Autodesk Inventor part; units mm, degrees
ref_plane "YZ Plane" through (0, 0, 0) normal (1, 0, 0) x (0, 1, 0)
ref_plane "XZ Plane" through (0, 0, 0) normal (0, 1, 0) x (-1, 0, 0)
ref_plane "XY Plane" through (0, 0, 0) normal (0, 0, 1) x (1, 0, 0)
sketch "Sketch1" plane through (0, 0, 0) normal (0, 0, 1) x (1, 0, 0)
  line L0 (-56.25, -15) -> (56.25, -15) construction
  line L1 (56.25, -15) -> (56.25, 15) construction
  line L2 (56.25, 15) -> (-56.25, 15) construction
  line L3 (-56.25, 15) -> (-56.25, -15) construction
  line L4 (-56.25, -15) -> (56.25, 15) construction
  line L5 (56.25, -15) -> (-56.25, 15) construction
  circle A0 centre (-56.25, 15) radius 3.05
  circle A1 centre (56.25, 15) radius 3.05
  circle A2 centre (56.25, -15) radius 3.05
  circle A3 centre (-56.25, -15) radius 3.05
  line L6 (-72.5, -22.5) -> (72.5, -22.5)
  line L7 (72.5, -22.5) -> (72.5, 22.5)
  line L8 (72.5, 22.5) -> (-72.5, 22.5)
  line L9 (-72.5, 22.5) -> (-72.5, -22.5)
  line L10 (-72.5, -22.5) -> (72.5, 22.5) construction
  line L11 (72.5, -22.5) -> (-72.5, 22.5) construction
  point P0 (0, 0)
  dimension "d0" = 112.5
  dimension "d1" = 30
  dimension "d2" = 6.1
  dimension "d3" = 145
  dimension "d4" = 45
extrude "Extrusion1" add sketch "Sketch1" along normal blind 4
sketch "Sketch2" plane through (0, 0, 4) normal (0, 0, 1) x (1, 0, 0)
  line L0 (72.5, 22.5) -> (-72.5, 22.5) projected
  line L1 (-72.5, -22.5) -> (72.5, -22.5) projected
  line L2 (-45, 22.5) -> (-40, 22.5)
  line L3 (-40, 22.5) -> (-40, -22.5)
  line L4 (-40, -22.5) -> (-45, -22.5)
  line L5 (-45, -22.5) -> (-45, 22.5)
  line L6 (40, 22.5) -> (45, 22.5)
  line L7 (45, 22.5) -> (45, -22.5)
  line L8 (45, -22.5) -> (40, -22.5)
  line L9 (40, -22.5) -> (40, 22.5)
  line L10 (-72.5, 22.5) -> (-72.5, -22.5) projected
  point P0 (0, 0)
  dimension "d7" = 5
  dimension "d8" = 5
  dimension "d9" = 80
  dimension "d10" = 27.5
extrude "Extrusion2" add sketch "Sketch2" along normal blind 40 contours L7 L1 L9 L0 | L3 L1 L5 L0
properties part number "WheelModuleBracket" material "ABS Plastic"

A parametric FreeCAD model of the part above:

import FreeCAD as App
import Part
import Sketcher
from FreeCAD import Vector


def add_polygon(sketch, points):
    """Adds a closed chain of lines whose ends are joined by coincident constraints."""
    first, n = sketch.GeometryCount, len(points)
    for a, b in zip(points, points[1:] + points[:1]):
        sketch.addGeometry(Part.LineSegment(App.Vector(*a, 0), App.Vector(*b, 0)), False)
    for i in range(n):
        sketch.addConstraint(Sketcher.Constraint("Coincident", first + i, 2, first + (i + 1) % n, 1))

doc = App.newDocument("Part")
body = doc.addObject("PartDesign::Body", "Body")

# Sketch on XY plane
sketch1 = body.newObject("Sketcher::SketchObject", "Sketch")
sketch1.AttachmentSupport = (doc.getObject("XY_Plane"), [""])
sketch1.MapMode = "FlatFace"
add_polygon(sketch1, [(-72.5, 22.5), (-72.5, -22.5), (72.5, -22.5), (72.5, 22.5)])  # lines 0-3
sketch1.addGeometry(Part.Circle(Vector(-56.2, -15, 0), Vector(0, 0, 1), 3), False)  # 4
sketch1.addGeometry(Part.Circle(Vector(56.2, -15, 0), Vector(0, 0, 1), 3), False)  # 5
sketch1.addGeometry(Part.Circle(Vector(-56.2, 15, 0), Vector(0, 0, 1), 3), False)  # 6
sketch1.addGeometry(Part.Circle(Vector(56.2, 15, 0), Vector(0, 0, 1), 3), False)  # 7
sketch1.addConstraint([
    Sketcher.Constraint("Vertical", 0),
    Sketcher.Constraint("Horizontal", 1),
    Sketcher.Constraint("Vertical", 2),
    Sketcher.Constraint("Horizontal", 3),
    Sketcher.Constraint("Equal", 4, 5),
    Sketcher.Constraint("Equal", 5, 6),
    Sketcher.Constraint("Equal", 6, 7),
    Sketcher.Constraint("Symmetric", 5, 3, 6, 3, -1, 1),
    Sketcher.Constraint("Symmetric", 4, 3, 7, 3, -1, 1),
    Sketcher.Constraint("Symmetric", 0, 2, 2, 2, -1, 1),
    Sketcher.Constraint("Symmetric", 4, 3, 5, 3, -2),
    Sketcher.Constraint("Diameter", 4, 6.1),
    Sketcher.Constraint("DistanceX", 1, 1, 1, 2, 145.0),
    Sketcher.Constraint("DistanceY", 0, 2, 0, 1, 45.0),
    Sketcher.Constraint("DistanceY", 4, 3, 6, 3, 30.0),
    Sketcher.Constraint("DistanceX", 4, 3, 5, 3, 112.5),
])
pad1 = body.newObject("PartDesign::Pad", "Pad")
pad1.Profile = sketch1
pad1.Length = 4

# Sketch on XY plane
sketch2 = body.newObject("Sketcher::SketchObject", "Sketch001")
sketch2.AttachmentSupport = (doc.getObject("XY_Plane"), [""])
sketch2.MapMode = "FlatFace"
sketch2.AttachmentOffset = App.Placement(Vector(0, 0, 4), App.Rotation())
add_polygon(sketch2, [(45, -22), (45, 22), (40, 22), (40, -22)])  # lines 0-3
add_polygon(sketch2, [(-40, -22), (-40, 22), (-45, 22), (-45, -22)])  # lines 4-7
sketch2.addConstraint([
    Sketcher.Constraint("Vertical", 0),
    Sketcher.Constraint("Horizontal", 1),
    Sketcher.Constraint("Vertical", 2),
    Sketcher.Constraint("Horizontal", 3),
    Sketcher.Constraint("Vertical", 4),
    Sketcher.Constraint("Horizontal", 5),
    Sketcher.Constraint("Vertical", 6),
    Sketcher.Constraint("Horizontal", 7),
    Sketcher.Constraint("Symmetric", 2, 2, 4, 2, -1, 1),
    Sketcher.Constraint("Symmetric", 0, 2, 6, 2, -1, 1),
    Sketcher.Constraint("Horizontal", 1, 2, 4, 2),
    Sketcher.Constraint("DistanceX", 1, 2, 1, 1, 5.0),
    Sketcher.Constraint("DistanceX", 4, 2, 1, 2, 80.0),
    Sketcher.Constraint("DistanceY", 0, 1, 0, 2, 45.0),
])
pad2 = body.newObject("PartDesign::Pad", "Pad001")
pad2.Profile = sketch2
pad2.Length = 40

doc.recompute()
